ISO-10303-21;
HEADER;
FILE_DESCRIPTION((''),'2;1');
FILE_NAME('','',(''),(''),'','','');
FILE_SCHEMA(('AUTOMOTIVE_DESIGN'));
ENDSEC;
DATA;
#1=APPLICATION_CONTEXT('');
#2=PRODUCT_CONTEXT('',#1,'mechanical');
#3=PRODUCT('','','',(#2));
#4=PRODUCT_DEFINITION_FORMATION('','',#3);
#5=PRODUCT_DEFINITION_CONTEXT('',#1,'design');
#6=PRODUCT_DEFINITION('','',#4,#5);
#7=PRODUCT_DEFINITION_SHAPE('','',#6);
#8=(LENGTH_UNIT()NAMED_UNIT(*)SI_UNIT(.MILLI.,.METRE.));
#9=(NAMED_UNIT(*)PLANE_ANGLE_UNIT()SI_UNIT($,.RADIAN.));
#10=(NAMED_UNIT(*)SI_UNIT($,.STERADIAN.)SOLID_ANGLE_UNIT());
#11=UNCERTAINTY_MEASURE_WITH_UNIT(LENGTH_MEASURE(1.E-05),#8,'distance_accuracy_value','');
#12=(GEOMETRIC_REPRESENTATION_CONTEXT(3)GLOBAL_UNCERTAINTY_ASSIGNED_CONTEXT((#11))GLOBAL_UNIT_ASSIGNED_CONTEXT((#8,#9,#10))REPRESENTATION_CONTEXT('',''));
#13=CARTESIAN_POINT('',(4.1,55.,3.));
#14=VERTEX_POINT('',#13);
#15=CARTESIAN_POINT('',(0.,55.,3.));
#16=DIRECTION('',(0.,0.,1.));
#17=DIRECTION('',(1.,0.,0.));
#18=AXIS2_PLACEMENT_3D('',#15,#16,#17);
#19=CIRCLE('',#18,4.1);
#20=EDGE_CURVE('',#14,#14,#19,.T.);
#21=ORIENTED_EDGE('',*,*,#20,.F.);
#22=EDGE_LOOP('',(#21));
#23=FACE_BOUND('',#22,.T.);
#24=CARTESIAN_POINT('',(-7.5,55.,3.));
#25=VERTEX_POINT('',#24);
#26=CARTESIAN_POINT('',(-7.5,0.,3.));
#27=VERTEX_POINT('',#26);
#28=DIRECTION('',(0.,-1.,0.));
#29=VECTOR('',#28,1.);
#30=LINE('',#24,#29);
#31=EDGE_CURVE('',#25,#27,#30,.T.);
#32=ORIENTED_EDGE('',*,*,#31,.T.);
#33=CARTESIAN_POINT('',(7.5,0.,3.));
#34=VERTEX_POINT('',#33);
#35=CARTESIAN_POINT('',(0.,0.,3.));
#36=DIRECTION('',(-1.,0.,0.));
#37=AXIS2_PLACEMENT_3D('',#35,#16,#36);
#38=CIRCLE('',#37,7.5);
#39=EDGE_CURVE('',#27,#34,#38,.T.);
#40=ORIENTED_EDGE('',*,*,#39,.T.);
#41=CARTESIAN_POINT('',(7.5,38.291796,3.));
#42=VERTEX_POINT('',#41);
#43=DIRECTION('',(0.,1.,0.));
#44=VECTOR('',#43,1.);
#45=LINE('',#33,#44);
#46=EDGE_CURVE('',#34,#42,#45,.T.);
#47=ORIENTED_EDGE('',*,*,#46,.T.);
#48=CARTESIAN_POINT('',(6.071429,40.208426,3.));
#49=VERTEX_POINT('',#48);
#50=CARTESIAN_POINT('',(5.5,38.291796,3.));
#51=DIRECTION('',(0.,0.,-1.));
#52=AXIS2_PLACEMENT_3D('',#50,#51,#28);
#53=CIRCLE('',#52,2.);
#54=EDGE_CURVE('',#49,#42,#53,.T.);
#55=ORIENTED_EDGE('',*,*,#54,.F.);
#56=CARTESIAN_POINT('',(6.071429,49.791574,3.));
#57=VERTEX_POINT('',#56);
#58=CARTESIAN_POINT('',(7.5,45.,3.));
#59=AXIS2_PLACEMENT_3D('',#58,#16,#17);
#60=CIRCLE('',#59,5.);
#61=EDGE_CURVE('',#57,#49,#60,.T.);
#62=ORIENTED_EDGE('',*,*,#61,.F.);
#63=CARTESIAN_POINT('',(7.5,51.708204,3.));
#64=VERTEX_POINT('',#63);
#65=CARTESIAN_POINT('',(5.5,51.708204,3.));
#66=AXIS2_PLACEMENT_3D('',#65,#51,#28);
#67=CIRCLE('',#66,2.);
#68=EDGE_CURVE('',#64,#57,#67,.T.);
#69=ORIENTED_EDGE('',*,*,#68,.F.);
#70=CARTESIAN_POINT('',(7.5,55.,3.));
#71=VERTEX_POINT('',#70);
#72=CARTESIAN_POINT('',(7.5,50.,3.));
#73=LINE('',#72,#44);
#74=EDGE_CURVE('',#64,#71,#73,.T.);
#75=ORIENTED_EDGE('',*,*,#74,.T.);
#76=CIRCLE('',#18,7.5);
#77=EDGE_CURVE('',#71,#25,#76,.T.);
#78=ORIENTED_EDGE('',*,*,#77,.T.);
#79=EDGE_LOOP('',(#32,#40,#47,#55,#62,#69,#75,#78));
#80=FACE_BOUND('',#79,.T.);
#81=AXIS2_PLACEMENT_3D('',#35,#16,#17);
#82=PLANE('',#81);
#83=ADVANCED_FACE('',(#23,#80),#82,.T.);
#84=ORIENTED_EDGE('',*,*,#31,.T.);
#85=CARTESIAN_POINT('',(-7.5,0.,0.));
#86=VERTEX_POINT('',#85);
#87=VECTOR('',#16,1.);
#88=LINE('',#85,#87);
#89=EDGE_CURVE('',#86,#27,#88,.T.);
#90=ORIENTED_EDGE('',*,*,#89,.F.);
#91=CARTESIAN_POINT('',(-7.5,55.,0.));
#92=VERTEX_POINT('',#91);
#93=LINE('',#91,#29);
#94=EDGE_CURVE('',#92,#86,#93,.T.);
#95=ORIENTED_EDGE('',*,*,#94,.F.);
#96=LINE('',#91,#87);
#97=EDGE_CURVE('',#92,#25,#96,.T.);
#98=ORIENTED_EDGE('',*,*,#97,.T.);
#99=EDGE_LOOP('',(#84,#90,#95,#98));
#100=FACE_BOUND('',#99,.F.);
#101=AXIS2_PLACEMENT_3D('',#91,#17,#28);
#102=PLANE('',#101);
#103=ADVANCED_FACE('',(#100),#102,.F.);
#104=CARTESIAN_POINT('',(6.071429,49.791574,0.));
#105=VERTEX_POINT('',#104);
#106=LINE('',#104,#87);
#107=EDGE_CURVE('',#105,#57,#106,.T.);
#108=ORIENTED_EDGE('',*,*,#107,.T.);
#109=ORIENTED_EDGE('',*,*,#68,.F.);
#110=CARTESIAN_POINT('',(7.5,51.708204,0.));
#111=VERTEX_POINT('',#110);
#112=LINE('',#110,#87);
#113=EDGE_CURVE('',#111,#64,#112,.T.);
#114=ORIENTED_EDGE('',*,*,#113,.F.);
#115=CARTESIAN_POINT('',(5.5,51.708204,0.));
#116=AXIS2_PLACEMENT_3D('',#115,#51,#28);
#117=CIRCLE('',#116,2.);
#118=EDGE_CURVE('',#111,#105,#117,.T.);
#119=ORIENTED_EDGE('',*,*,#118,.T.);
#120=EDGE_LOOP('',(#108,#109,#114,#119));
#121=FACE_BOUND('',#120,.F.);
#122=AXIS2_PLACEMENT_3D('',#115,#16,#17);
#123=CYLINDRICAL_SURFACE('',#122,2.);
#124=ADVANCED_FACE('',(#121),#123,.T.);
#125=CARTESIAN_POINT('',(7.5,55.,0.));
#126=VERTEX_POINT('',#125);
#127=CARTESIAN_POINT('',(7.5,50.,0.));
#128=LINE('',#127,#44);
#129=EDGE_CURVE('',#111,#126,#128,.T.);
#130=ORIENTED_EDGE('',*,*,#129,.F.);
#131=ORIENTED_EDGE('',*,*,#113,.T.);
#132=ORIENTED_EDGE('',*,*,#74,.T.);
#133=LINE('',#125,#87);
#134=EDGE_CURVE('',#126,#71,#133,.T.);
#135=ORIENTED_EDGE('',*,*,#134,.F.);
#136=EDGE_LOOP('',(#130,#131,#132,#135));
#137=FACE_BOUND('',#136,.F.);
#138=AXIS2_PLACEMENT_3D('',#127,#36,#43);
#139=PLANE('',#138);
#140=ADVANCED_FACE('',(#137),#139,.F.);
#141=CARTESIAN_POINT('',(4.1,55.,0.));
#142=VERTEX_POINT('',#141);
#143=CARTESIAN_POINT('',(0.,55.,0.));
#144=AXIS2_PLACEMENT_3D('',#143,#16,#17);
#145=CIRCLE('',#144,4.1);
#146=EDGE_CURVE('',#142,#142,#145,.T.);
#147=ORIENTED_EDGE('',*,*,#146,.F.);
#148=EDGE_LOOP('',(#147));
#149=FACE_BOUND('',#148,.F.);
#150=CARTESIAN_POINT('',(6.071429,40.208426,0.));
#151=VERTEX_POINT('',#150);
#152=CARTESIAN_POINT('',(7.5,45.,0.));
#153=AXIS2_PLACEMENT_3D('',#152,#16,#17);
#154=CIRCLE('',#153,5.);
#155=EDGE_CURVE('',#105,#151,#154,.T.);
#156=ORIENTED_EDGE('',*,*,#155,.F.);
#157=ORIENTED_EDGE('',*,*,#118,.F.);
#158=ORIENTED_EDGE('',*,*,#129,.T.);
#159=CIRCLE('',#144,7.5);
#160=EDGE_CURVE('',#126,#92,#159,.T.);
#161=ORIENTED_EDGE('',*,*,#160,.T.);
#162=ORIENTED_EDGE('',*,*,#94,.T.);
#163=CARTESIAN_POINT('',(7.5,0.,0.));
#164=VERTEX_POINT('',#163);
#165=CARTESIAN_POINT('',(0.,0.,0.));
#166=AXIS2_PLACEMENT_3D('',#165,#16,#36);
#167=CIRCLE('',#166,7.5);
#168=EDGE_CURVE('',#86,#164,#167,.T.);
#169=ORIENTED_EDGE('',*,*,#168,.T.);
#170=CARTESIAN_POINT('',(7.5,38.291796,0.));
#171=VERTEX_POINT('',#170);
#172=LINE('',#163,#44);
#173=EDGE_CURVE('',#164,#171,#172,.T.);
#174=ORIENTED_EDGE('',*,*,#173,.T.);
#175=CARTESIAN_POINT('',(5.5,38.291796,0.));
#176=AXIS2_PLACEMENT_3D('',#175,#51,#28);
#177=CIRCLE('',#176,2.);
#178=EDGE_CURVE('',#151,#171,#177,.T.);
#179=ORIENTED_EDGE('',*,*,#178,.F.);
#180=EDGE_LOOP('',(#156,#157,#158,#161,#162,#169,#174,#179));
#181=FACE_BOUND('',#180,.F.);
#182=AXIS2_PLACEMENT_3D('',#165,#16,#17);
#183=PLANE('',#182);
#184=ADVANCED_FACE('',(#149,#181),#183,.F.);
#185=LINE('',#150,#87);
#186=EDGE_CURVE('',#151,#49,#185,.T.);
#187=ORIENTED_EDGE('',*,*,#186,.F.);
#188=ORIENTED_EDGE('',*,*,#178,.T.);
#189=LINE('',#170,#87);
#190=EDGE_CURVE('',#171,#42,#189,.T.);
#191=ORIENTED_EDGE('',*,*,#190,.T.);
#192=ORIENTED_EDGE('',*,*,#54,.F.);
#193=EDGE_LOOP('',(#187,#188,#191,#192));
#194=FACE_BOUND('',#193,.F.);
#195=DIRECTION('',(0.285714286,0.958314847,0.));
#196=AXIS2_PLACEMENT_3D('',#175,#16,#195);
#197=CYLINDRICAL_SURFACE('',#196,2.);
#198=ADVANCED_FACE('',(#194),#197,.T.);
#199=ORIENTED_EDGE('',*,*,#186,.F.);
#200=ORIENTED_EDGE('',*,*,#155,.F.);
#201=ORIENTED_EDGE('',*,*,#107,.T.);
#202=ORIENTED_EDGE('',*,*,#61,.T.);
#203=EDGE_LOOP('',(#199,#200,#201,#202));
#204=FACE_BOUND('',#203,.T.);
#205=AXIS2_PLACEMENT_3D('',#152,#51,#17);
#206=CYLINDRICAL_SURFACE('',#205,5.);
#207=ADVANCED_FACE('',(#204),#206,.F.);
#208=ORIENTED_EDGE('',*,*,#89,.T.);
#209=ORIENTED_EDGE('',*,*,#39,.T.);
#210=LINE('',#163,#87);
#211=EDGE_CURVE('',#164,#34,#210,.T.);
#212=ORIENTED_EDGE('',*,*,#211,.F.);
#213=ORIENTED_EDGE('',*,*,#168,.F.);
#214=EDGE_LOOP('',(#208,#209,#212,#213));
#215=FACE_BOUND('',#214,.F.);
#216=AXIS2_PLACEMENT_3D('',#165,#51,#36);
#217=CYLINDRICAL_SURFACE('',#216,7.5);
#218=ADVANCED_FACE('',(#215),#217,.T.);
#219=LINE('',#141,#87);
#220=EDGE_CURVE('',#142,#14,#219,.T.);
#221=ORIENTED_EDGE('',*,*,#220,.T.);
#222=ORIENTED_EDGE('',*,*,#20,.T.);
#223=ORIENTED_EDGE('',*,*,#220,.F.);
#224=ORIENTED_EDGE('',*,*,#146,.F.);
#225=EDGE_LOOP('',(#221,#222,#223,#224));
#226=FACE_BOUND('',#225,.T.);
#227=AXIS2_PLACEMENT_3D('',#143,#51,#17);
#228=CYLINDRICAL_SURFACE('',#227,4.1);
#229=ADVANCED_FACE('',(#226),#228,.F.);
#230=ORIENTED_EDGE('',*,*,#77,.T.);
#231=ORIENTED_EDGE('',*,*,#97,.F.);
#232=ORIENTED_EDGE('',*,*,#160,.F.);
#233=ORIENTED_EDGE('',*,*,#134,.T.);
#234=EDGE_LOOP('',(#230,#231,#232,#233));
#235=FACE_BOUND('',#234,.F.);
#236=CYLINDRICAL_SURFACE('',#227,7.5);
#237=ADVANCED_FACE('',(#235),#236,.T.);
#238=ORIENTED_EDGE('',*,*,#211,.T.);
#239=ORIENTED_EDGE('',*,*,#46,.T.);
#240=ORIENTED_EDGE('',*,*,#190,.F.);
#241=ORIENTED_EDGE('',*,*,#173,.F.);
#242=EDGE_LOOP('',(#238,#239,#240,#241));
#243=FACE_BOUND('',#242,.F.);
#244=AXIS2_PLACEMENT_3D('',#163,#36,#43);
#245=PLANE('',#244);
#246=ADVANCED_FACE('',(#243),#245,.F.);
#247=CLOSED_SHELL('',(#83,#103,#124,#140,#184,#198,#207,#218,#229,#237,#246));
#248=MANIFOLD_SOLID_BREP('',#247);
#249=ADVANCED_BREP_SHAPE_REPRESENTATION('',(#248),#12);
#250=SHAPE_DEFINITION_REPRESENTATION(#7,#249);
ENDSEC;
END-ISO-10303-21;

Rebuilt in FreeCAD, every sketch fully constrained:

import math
import FreeCAD as App
import Part
import Sketcher
from FreeCAD import Vector
Q = App.Units.Quantity


def edges_at(feature, points):
    """Names of the edges that pass closest to the given points."""
    edges = feature.Shape.Edges
    near = lambda p: min(range(len(edges)), key=lambda i: edges[i].distToShape(Part.Vertex(*p))[0])
    return sorted({f"Edge{near(p) + 1}" for p in points})

doc = App.newDocument("Part")
body = doc.addObject("PartDesign::Body", "Body")

# Sketch on XY plane
sketch1 = body.newObject("Sketcher::SketchObject", "Sketch")
sketch1.AttachmentSupport = (doc.getObject("XY_Plane"), [""])
sketch1.MapMode = "FlatFace"
sketch1.addGeometry(Part.LineSegment(Vector(-7.5, 55, 0), Vector(-7.5, 0, 0)), False)
sketch1.addGeometry(Part.ArcOfCircle(Part.Circle(Vector(0, 0, 0), Vector(0, 0, 1), 7.5), math.radians(180), math.radians(360)), False)
sketch1.addGeometry(Part.LineSegment(Vector(7.5, 0, 0), Vector(7.5, 40, 0)), False)
sketch1.addGeometry(Part.ArcOfCircle(Part.Circle(Vector(7.5, 45, 0), Vector(0, 0, 1), 5), math.radians(90), math.radians(270)), False)
sketch1.addGeometry(Part.LineSegment(Vector(7.5, 50, 0), Vector(7.5, 55, 0)), False)
sketch1.addGeometry(Part.ArcOfCircle(Part.Circle(Vector(0, 55, 0), Vector(0, 0, 1), 7.5), math.radians(0), math.radians(180)), False)
sketch1.addGeometry(Part.Circle(Vector(0, 55, 0), Vector(0, 0, 1), 4.1), False)
sketch1.addConstraint(Sketcher.Constraint("Tangent", 0, 2, 1, 1))
sketch1.addConstraint(Sketcher.Constraint("Tangent", 1, 2, 2, 1))
sketch1.addConstraint(Sketcher.Constraint("Coincident", 2, 2, 3, 2))
sketch1.addConstraint(Sketcher.Constraint("Coincident", 3, 1, 4, 1))
sketch1.addConstraint(Sketcher.Constraint("Tangent", 4, 2, 5, 1))
sketch1.addConstraint(Sketcher.Constraint("Tangent", 5, 2, 0, 1))
sketch1.addConstraint(Sketcher.Constraint("Vertical", 0))
sketch1.addConstraint(Sketcher.Constraint("Vertical", 2))
sketch1.addConstraint(Sketcher.Constraint("Vertical", 4))
sketch1.addConstraint(Sketcher.Constraint("Coincident", 1, 3, -1, 1))
sketch1.addConstraint(Sketcher.Constraint("Coincident", 6, 3, 5, 3))
sketch1.addConstraint(Sketcher.Constraint("Equal", 1, 5))
sketch1.addConstraint(Sketcher.Constraint("Vertical", 3, 3, 1, 2))
sketch1.addConstraint(Sketcher.Constraint("Radius", 3, Q("5 mm")))
sketch1.addConstraint(Sketcher.Constraint("Diameter", 6, Q("8.2 mm")))
sketch1.addConstraint(Sketcher.Constraint("Radius", 1, Q("7.5 mm")))
sketch1.addConstraint(Sketcher.Constraint("DistanceY", 0, 2, 0, 1, Q("55 mm")))
sketch1.addConstraint(Sketcher.Constraint("DistanceY", 3, 3, 5, 3, Q("10 mm")))
pad1 = body.newObject("PartDesign::Pad", "Pad")
pad1.Profile = sketch1
pad1.Length = 3
doc.recompute()

fillet = body.newObject("PartDesign::Fillet", "Fillet")
fillet.Base = (pad1, edges_at(pad1, [(7.5, 50, 1.5), (7.5, 40, 1.5)]))
fillet.Radius = 2

doc.recompute()
